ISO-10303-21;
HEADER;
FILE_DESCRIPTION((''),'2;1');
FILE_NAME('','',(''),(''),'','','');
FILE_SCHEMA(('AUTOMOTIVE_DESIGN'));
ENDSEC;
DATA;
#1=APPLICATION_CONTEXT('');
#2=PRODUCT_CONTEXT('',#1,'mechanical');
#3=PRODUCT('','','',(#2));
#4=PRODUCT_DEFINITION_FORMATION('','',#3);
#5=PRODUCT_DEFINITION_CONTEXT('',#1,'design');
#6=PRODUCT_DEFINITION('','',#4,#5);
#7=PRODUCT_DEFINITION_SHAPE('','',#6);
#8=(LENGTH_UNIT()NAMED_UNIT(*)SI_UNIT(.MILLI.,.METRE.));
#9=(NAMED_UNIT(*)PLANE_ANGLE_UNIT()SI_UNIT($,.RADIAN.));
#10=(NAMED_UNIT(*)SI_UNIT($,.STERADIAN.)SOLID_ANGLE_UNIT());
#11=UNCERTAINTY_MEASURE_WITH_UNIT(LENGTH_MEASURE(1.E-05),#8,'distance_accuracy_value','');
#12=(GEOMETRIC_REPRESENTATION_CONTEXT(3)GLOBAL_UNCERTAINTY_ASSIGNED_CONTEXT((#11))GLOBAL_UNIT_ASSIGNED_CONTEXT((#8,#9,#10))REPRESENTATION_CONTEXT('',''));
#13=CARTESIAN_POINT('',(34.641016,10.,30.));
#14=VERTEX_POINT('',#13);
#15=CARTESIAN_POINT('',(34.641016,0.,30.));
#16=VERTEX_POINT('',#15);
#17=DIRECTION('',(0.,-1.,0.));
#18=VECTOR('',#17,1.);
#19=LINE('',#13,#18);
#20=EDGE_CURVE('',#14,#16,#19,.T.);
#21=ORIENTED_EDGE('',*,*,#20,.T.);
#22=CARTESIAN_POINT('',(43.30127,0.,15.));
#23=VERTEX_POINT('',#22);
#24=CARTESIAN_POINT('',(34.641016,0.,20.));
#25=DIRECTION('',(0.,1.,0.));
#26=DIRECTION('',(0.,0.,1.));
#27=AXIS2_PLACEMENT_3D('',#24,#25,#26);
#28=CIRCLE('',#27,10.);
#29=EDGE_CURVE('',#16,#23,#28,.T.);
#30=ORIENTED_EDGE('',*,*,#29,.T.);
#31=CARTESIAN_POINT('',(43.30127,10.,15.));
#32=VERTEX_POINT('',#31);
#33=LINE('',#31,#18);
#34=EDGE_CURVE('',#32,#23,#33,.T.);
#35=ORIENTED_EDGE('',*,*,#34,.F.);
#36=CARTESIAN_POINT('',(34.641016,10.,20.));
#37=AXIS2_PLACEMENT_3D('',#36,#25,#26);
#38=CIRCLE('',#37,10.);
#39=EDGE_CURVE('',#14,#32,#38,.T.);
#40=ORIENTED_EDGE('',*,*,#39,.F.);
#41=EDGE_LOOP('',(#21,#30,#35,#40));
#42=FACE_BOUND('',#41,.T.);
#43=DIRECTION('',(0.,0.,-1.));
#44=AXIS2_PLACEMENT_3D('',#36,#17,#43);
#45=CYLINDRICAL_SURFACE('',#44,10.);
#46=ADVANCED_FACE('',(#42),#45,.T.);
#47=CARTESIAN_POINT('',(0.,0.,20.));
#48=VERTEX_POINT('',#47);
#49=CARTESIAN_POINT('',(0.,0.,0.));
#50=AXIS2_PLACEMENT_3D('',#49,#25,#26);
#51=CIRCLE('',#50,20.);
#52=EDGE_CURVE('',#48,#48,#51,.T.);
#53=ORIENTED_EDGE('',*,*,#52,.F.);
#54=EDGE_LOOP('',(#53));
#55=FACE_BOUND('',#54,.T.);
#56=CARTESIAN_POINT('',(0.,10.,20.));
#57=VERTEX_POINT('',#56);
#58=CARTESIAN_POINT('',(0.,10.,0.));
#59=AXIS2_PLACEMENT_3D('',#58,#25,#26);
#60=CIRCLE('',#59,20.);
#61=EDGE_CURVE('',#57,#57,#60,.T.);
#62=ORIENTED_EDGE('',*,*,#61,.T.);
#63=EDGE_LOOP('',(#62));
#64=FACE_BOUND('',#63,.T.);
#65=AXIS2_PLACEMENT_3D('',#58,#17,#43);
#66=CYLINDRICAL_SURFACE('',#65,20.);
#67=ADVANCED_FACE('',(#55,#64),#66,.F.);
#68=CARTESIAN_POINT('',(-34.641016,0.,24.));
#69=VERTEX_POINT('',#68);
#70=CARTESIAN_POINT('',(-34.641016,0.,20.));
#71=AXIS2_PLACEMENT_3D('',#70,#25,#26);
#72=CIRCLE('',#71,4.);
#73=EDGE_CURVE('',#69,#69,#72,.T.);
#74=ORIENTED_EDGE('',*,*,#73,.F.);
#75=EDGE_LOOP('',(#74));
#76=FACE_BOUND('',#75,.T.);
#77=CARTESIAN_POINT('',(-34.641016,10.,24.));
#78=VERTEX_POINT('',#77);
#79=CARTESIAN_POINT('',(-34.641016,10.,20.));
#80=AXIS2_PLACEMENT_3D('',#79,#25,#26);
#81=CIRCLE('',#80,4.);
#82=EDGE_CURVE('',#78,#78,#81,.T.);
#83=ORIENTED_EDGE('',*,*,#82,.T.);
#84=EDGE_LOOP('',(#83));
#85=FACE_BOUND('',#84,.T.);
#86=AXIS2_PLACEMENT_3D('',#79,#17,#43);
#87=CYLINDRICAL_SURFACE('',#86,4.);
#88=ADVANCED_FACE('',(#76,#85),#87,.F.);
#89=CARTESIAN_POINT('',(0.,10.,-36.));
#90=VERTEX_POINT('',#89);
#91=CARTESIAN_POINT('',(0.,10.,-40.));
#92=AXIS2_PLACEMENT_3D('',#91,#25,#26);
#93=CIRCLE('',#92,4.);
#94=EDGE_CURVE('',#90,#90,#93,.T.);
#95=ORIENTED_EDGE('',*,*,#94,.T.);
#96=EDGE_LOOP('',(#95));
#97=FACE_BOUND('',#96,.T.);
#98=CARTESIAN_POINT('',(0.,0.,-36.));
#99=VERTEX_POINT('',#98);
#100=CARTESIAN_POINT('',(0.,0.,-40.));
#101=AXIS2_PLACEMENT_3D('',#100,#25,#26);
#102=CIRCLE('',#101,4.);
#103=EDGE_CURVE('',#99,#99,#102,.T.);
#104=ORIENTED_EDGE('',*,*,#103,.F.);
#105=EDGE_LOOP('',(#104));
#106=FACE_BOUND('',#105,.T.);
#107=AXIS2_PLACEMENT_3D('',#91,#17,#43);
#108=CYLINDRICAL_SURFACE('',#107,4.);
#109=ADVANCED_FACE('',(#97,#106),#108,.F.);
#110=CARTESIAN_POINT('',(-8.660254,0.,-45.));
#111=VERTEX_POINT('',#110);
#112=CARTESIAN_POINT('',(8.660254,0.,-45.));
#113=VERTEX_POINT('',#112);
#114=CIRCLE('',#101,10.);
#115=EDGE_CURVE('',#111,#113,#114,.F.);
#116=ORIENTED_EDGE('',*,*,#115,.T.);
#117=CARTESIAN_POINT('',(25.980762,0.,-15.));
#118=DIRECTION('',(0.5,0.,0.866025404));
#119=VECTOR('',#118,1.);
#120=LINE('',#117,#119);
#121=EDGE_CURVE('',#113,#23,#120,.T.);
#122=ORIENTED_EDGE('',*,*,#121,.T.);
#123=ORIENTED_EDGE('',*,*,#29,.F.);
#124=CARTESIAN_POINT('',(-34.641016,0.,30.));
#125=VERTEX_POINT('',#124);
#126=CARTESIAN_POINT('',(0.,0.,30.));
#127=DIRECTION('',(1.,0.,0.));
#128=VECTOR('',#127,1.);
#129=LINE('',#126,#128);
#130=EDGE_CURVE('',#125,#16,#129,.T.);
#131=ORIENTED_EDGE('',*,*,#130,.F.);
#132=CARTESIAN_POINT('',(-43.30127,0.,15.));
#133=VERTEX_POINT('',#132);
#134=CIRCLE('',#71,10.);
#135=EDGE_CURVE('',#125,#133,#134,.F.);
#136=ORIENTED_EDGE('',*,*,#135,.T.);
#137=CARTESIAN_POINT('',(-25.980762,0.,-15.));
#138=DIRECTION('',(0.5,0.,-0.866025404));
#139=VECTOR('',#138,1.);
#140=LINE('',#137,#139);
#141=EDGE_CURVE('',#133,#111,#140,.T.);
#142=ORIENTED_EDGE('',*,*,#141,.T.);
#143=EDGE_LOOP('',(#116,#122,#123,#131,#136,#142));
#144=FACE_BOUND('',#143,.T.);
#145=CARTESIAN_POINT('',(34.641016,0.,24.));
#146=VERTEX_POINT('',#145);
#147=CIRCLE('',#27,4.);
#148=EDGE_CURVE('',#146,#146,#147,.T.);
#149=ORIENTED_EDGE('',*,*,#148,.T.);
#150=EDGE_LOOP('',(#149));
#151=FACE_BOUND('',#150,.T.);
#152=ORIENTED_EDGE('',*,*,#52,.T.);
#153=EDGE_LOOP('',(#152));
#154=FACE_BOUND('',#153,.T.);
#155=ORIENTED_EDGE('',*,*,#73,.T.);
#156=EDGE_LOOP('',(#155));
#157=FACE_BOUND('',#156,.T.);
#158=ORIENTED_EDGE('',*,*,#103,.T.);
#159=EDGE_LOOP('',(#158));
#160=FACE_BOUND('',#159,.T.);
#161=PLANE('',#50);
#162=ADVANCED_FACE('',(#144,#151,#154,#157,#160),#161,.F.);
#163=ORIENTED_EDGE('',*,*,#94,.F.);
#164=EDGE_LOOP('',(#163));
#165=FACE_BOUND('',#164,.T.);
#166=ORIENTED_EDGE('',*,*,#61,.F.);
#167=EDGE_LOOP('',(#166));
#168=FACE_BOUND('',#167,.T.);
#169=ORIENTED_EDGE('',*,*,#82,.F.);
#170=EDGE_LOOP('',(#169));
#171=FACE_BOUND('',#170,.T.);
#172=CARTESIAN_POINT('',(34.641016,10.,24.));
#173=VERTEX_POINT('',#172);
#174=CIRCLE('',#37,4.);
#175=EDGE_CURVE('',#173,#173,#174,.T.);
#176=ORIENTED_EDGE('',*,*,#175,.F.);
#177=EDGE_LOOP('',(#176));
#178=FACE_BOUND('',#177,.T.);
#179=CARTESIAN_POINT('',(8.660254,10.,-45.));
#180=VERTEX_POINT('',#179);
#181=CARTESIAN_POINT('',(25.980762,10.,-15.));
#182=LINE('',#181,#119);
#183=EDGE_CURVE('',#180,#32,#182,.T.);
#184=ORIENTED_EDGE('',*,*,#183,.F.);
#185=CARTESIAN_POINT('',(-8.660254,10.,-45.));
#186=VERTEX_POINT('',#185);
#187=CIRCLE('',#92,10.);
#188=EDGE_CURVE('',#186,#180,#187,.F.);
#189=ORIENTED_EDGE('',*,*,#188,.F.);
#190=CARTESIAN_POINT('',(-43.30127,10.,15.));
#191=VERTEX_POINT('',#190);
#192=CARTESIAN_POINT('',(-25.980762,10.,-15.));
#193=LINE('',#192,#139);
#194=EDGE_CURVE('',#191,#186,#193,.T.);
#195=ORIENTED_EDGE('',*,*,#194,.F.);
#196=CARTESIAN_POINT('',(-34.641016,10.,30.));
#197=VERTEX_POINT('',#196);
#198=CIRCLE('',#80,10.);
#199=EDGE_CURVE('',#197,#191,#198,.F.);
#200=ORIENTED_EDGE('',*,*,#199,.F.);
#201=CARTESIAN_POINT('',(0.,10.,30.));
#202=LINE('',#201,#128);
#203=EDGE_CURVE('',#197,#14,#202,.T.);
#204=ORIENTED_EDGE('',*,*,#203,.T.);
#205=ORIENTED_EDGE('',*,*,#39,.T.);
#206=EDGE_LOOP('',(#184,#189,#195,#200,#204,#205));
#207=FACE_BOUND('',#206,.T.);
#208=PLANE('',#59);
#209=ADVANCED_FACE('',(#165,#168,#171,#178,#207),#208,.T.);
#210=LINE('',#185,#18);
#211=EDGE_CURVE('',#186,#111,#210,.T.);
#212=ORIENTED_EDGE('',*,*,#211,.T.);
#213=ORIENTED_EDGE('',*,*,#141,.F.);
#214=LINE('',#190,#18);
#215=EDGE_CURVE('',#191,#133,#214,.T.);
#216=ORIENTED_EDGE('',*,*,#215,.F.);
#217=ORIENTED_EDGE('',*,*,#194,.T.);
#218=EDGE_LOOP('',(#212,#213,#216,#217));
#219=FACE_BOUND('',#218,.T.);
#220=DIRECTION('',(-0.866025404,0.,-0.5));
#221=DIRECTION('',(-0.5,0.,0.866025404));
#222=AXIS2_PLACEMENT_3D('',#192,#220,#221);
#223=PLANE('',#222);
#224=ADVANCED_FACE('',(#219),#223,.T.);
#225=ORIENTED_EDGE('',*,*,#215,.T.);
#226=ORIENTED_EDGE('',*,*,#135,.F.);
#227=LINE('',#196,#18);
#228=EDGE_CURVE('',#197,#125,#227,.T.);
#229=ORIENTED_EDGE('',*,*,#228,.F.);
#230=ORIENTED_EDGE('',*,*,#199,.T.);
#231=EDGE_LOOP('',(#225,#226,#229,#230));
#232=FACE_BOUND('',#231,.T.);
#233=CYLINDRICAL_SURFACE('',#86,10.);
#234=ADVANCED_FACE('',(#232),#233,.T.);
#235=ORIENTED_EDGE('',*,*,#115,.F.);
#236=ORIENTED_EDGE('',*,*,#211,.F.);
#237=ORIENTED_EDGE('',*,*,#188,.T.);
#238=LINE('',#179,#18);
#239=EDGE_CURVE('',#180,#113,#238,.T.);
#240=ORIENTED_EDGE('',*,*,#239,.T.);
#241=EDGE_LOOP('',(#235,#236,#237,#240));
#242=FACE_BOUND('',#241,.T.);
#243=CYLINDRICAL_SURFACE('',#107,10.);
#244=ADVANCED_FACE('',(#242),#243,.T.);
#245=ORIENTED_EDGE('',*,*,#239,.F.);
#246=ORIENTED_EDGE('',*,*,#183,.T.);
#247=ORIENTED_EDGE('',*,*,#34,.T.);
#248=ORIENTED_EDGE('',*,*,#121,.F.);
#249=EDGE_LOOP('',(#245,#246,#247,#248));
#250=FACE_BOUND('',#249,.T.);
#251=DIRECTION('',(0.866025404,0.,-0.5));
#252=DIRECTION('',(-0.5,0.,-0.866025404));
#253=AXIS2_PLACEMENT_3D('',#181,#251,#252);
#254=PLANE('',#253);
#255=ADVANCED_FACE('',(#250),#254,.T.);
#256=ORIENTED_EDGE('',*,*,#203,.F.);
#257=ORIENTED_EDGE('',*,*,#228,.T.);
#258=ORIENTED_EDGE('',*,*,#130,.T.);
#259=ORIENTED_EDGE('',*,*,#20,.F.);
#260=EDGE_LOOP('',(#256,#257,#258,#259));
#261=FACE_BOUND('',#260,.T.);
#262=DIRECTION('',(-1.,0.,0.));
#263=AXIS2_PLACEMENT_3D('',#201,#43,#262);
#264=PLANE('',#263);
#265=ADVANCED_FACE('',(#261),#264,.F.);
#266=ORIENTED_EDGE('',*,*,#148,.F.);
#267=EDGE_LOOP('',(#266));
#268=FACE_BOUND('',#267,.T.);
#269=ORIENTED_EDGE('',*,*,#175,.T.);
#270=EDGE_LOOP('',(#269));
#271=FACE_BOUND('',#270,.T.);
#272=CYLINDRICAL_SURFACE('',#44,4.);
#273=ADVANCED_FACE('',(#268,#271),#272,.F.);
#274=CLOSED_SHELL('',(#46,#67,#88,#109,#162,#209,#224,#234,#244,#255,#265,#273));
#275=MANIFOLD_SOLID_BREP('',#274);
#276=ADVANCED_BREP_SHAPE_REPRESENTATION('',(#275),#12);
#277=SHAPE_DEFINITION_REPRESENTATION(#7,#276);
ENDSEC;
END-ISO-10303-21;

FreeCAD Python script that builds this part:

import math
import FreeCAD as App
import Part
import Sketcher

V = App.Vector
Q = App.Units.Quantity

doc = App.newDocument("Part")
body = doc.addObject("PartDesign::Body", "Body")

# Sketch on XZ plane
sketch1 = body.newObject("Sketcher::SketchObject", "Sketch")
sketch1.AttachmentSupport = (doc.getObject("XZ_Plane"), [""])
sketch1.MapMode = "FlatFace"
sketch1.addGeometry([
    Part.ArcOfCircle(Part.Circle(V(34.641016, 20, 0), V(0, 0, 1), 10), math.radians(-30), math.radians(30)),  # 0
    Part.LineSegment(V(43.30127, 15, 0), V(39.209519, 7.912878, 0)),  # 1
    Part.LineSegment(V(39.209519, 7.912878, 0), V(12.752006, -37.912878, 0)),  # 2
    Part.LineSegment(V(12.752006, -37.912878, 0), V(8.660254, -45, 0)),  # 3
    Part.ArcOfCircle(Part.Circle(V(0, -40, 0), V(0, 0, 1), 10), math.radians(-90), math.radians(-30)),  # 4
    Part.ArcOfCircle(Part.Circle(V(0, -40, 0), V(0, 0, 1), 10), math.radians(-150), math.radians(-90)),  # 5
    Part.LineSegment(V(-8.660254, -45, 0), V(-12.752006, -37.912878, 0)),  # 6
    Part.LineSegment(V(-12.752006, -37.912878, 0), V(-39.209519, 7.912878, 0)),  # 7
    Part.LineSegment(V(-39.209519, 7.912878, 0), V(-43.30127, 15, 0)),  # 8
    Part.ArcOfCircle(Part.Circle(V(-34.641016, 20, 0), V(0, 0, 1), 10), math.radians(150), math.radians(210)),  # 9
    Part.ArcOfCircle(Part.Circle(V(-34.641016, 20, 0), V(0, 0, 1), 10), math.radians(90), math.radians(150)),  # 10
    Part.LineSegment(V(-34.641016, 30, 0), V(34.641016, 30, 0)),  # 11
    Part.ArcOfCircle(Part.Circle(V(34.641016, 20, 0), V(0, 0, 1), 10), math.radians(30), math.radians(90)),  # 12
    Part.ArcOfCircle(Part.Circle(V(-34.641016, 20, 0), V(0, 0, 1), 4), math.radians(-117.134016), math.radians(-30)),  # 13
    Part.ArcOfCircle(Part.Circle(V(-34.641016, 20, 0), V(0, 0, 1), 4), math.radians(-30), math.radians(0)),  # 14
    Part.ArcOfCircle(Part.Circle(V(-34.641016, 20, 0), V(0, 0, 1), 4), math.radians(0), math.radians(57.134016)),  # 15
    Part.ArcOfCircle(Part.Circle(V(-34.641016, 20, 0), V(0, 0, 1), 4), math.radians(57.134016), math.radians(150)),  # 16
    Part.ArcOfCircle(Part.Circle(V(-34.641016, 20, 0), V(0, 0, 1), 4), math.radians(150), math.radians(242.865984)),  # 17
    Part.ArcOfCircle(Part.Circle(V(34.641016, 20, 0), V(0, 0, 1), 4), math.radians(122.865984), math.radians(210)),  # 18
    Part.ArcOfCircle(Part.Circle(V(34.641016, 20, 0), V(0, 0, 1), 4), math.radians(-150), math.radians(-62.865984)),  # 19
    Part.ArcOfCircle(Part.Circle(V(34.641016, 20, 0), V(0, 0, 1), 4), math.radians(-62.865984), math.radians(0)),  # 20
    Part.ArcOfCircle(Part.Circle(V(34.641016, 20, 0), V(0, 0, 1), 4), math.radians(0), math.radians(30)),  # 21
    Part.ArcOfCircle(Part.Circle(V(34.641016, 20, 0), V(0, 0, 1), 4), math.radians(30), math.radians(122.865984)),  # 22
    Part.ArcOfCircle(Part.Circle(V(0, 0, 0), V(0, 0, 1), 20), math.radians(150), math.radians(270)),  # 23
    Part.ArcOfCircle(Part.Circle(V(0, 0, 0), V(0, 0, 1), 20), math.radians(-90), math.radians(0)),  # 24
    Part.ArcOfCircle(Part.Circle(V(0, 0, 0), V(0, 0, 1), 20), math.radians(0), math.radians(30)),  # 25
    Part.ArcOfCircle(Part.Circle(V(0, 0, 0), V(0, 0, 1), 20), math.radians(30), math.radians(150)),  # 26
    Part.ArcOfCircle(Part.Circle(V(0, -40, 0), V(0, 0, 1), 4), math.radians(90), math.radians(177.134016)),  # 27
    Part.ArcOfCircle(Part.Circle(V(0, -40, 0), V(0, 0, 1), 4), math.radians(177.134016), math.radians(270)),  # 28
    Part.ArcOfCircle(Part.Circle(V(0, -40, 0), V(0, 0, 1), 4), math.radians(-90), math.radians(0)),  # 29
    Part.ArcOfCircle(Part.Circle(V(0, -40, 0), V(0, 0, 1), 4), math.radians(0), math.radians(2.865984)),  # 30
    Part.ArcOfCircle(Part.Circle(V(0, -40, 0), V(0, 0, 1), 4), math.radians(2.865984), math.radians(90)),  # 31
], False)
sketch1.addConstraint([
    Sketcher.Constraint("Tangent", 0, 1, 1, 1),
    Sketcher.Constraint("Coincident", 1, 2, 2, 1),
    Sketcher.Constraint("Coincident", 2, 2, 3, 1),
    Sketcher.Constraint("Tangent", 3, 2, 4, 2),
    Sketcher.Constraint("Tangent", 4, 1, 5, 2),
    Sketcher.Constraint("Tangent", 5, 1, 6, 1),
    Sketcher.Constraint("Coincident", 6, 2, 7, 1),
    Sketcher.Constraint("Coincident", 7, 2, 8, 1),
    Sketcher.Constraint("Tangent", 8, 2, 9, 2),
    Sketcher.Constraint("Tangent", 9, 1, 10, 2),
    Sketcher.Constraint("Tangent", 10, 1, 11, 1),
    Sketcher.Constraint("Tangent", 11, 2, 12, 2),
    Sketcher.Constraint("Tangent", 12, 1, 0, 2),
    Sketcher.Constraint("Tangent", 13, 2, 14, 1),
    Sketcher.Constraint("Tangent", 14, 2, 15, 1),
    Sketcher.Constraint("Tangent", 15, 2, 16, 1),
    Sketcher.Constraint("Tangent", 16, 2, 17, 1),
    Sketcher.Constraint("Tangent", 17, 2, 13, 1),
    Sketcher.Constraint("Tangent", 18, 2, 19, 1),
    Sketcher.Constraint("Tangent", 19, 2, 20, 1),
    Sketcher.Constraint("Tangent", 20, 2, 21, 1),
    Sketcher.Constraint("Tangent", 21, 2, 22, 1),
    Sketcher.Constraint("Tangent", 22, 2, 18, 1),
    Sketcher.Constraint("Tangent", 23, 2, 24, 1),
    Sketcher.Constraint("Tangent", 24, 2, 25, 1),
    Sketcher.Constraint("Tangent", 25, 2, 26, 1),
    Sketcher.Constraint("Tangent", 26, 2, 23, 1),
    Sketcher.Constraint("Tangent", 27, 2, 28, 1),
    Sketcher.Constraint("Tangent", 28, 2, 29, 1),
    Sketcher.Constraint("Tangent", 29, 2, 30, 1),
    Sketcher.Constraint("Tangent", 30, 2, 31, 1),
    Sketcher.Constraint("Tangent", 31, 2, 27, 1),
    Sketcher.Constraint("Horizontal", 11),
    Sketcher.Constraint("Coincident", 23, 3, -1, 1),
    Sketcher.Constraint("Coincident", 13, 3, 9, 3),
    Sketcher.Constraint("Coincident", 15, 3, 9, 3),
    Sketcher.Constraint("Coincident", 18, 3, 0, 3),
    Sketcher.Constraint("Coincident", 20, 3, 0, 3),
    Sketcher.Constraint("Coincident", 27, 3, 4, 3),
    Sketcher.Constraint("Coincident", 29, 3, 4, 3),
    Sketcher.Constraint("Equal", 0, 4),
    Sketcher.Constraint("Equal", 4, 5),
    Sketcher.Constraint("Equal", 5, 9),
    Sketcher.Constraint("Equal", 9, 10),
    Sketcher.Constraint("Equal", 10, 12),
    Sketcher.Constraint("Equal", 17, 18),
    Sketcher.Constraint("Equal", 23, 24),
    Sketcher.Constraint("Equal", 22, 27),
    Sketcher.Constraint("Symmetric", 3, 2, 5, 1, -2),
    Sketcher.Constraint("Symmetric", 1, 2, 7, 2, -2),
    Sketcher.Constraint("Symmetric", 9, 1, 12, 1, -2),
    Sketcher.Constraint("PointOnObject", 4, 1, -2),
    Sketcher.Constraint("PointOnObject", 23, 2, -2),
    Sketcher.Constraint("PointOnObject", 24, 2, -1),
    Sketcher.Constraint("PointOnObject", 28, 2, -2),
    Sketcher.Constraint("PointOnObject", 31, 2, -2),
    Sketcher.Constraint("Parallel", 1, 2),
    Sketcher.Constraint("Parallel", 2, 3),
    Sketcher.Constraint("Horizontal", 2, 2, 6, 2),
    Sketcher.Constraint("Horizontal", 22, 3, 14, 2),
    Sketcher.Constraint("Horizontal", 13, 2, 18, 2),
    Sketcher.Constraint("Horizontal", 17, 2, 19, 2),
    Sketcher.Constraint("Horizontal", 14, 2, 20, 2),
    Sketcher.Constraint("Horizontal", 16, 2, 21, 2),
    Sketcher.Constraint("Horizontal", 15, 2, 22, 2),
    Sketcher.Constraint("Horizontal", 25, 2, 26, 2),
    Sketcher.Constraint("Horizontal", 31, 3, 29, 2),
    Sketcher.Constraint("Horizontal", 27, 2, 30, 2),
    Sketcher.Constraint("Vertical", 8, 2, 9, 1),
    Sketcher.Constraint("Equal", 1, 3),
    Sketcher.Constraint("Radius", 0, 10.0),
    Sketcher.Constraint("Radius", 13, 4.0),
    Sketcher.Constraint("Radius", 23, 20.0),
    Sketcher.Constraint("Angle", 1, Q("-120 deg")),
    Sketcher.Constraint("DistanceY", -1, 1, 0, 3, 20.0),
    Sketcher.Constraint("DistanceY", 4, 3, -1, 1, 40.0),
    Sketcher.Constraint("DistanceY", -1, 1, 13, 2, 18.0),
    Sketcher.Constraint("DistanceY", -1, 1, 16, 2, 22.0),
    Sketcher.Constraint("DistanceY", -1, 1, 25, 2, 10.0),
    Sketcher.Constraint("DistanceY", 27, 2, -1, 1, 39.8),
    Sketcher.Constraint("DistanceX", -1, 1, 1, 2, 39.209519),
    Sketcher.Constraint("DistanceY", -1, 1, 15, 2, 23.359769),
    Sketcher.Constraint("DistanceX", 17, 2, -1, 1, 36.46531),
])
pad1 = body.newObject("PartDesign::Pad", "Pad")
pad1.Profile = sketch1
pad1.Length = 10
pad1.Reversed = True

doc.recompute()
